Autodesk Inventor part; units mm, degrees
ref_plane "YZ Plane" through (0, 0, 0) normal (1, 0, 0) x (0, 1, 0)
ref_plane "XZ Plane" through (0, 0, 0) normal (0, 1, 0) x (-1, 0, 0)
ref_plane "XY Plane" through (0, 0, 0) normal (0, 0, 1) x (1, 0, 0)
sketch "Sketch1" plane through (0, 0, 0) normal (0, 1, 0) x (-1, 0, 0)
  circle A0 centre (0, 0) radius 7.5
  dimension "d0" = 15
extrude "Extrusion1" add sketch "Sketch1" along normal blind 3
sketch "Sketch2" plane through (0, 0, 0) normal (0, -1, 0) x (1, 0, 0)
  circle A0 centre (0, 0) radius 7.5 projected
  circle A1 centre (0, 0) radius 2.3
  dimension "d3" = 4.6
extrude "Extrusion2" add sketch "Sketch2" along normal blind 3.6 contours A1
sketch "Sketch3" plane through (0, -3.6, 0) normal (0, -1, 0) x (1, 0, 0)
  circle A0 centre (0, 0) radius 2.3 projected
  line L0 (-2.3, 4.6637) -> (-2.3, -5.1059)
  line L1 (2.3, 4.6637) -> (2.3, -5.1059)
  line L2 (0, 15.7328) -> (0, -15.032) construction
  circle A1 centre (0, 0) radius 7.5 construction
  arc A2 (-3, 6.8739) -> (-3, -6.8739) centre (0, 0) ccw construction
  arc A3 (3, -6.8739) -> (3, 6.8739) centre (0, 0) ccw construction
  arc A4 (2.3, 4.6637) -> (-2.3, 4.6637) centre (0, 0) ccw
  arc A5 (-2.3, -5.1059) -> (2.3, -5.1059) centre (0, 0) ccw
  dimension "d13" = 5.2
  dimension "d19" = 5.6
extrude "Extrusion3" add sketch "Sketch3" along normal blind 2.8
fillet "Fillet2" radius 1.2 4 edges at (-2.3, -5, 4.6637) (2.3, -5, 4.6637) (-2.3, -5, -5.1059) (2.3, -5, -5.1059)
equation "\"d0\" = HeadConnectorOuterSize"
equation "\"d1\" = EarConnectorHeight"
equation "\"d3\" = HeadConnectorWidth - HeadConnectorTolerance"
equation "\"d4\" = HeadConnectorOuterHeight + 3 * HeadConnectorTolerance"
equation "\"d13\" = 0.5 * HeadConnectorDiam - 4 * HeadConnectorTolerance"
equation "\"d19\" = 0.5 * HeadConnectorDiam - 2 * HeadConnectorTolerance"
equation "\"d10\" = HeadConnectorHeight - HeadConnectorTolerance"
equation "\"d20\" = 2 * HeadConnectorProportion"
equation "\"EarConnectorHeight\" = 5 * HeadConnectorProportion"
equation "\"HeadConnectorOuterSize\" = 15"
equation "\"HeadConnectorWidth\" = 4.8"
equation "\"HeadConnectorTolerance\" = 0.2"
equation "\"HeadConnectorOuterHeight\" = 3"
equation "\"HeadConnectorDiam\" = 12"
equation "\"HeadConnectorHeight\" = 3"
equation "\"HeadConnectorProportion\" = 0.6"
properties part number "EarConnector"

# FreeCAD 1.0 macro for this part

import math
import FreeCAD as App
import Part
import Sketcher
Q = App.Units.Quantity


def edges_at(feature, points):
    """Names of the edges that pass closest to the given points."""
    edges = feature.Shape.Edges
    near = lambda p: min(range(len(edges)), key=lambda i: edges[i].distToShape(Part.Vertex(*p))[0])
    return sorted({f"Edge{near(p) + 1}" for p in points})

doc = App.newDocument("Part")
body = doc.addObject("PartDesign::Body", "Body")

# Sketch on XZ plane
sketch1 = body.newObject("Sketcher::SketchObject", "Sketch")
sketch1.AttachmentSupport = (doc.getObject("XZ_Plane"), [""])
sketch1.MapMode = "FlatFace"
sketch1.addGeometry(Part.Circle(App.Vector(0, 0, 0), App.Vector(0, 0, 1), 8), False)
sketch1.addConstraint([
    Sketcher.Constraint("Coincident", 0, 3, -1, 1),
    Sketcher.Constraint("Diameter", 0, Q("15 mm")),
])
pad1 = body.newObject("PartDesign::Pad", "Pad")
pad1.Profile = sketch1
pad1.Length = 3
pad1.Reversed = True

# Sketch on XZ plane
sketch2 = body.newObject("Sketcher::SketchObject", "Sketch001")
sketch2.AttachmentSupport = (doc.getObject("XZ_Plane"), [""])
sketch2.MapMode = "FlatFace"
sketch2.addGeometry(Part.Circle(App.Vector(0, 0, 0), App.Vector(0, 0, 1), 2.3), False)
sketch2.addConstraint([
    Sketcher.Constraint("Coincident", 0, 3, -1, 1),
    Sketcher.Constraint("Diameter", 0, Q("4.6 mm")),
])
pad2 = body.newObject("PartDesign::Pad", "Pad001")
pad2.Profile = sketch2
pad2.Length = 3.6

# Sketch on XZ plane
sketch3 = body.newObject("Sketcher::SketchObject", "Sketch002")
sketch3.AttachmentSupport = (doc.getObject("XZ_Plane"), [""])
sketch3.MapMode = "FlatFace"
sketch3.AttachmentOffset = App.Placement(App.Vector(0, 0, 3.6), App.Rotation())
sketch3.addGeometry([
    Part.LineSegment(App.Vector(2.3, -5.1, 0), App.Vector(2.3, 4.7, 0)),
    Part.ArcOfCircle(Part.Circle(App.Vector(0, 0, 0), App.Vector(0, 0, 1), 5.2), math.radians(64), math.radians(116)),
    Part.LineSegment(App.Vector(-2.3, 4.7, 0), App.Vector(-2.3, -5.1, 0)),
    Part.ArcOfCircle(Part.Circle(App.Vector(0, 0, 0), App.Vector(0, 0, 1), 5.6), math.radians(-114), math.radians(-66)),
], False)
sketch3.addConstraint([
    Sketcher.Constraint("Coincident", 0, 2, 1, 1),
    Sketcher.Constraint("Coincident", 1, 2, 2, 1),
    Sketcher.Constraint("Coincident", 2, 2, 3, 1),
    Sketcher.Constraint("Coincident", 3, 2, 0, 1),
    Sketcher.Constraint("Vertical", 0),
    Sketcher.Constraint("Vertical", 2),
    Sketcher.Constraint("Coincident", 1, 3, -1, 1),
    Sketcher.Constraint("Coincident", 3, 3, -1, 1),
    Sketcher.Constraint("Horizontal", 0, 2, 1, 2),
    Sketcher.Constraint("Radius", 1, Q("5.2 mm")),
    Sketcher.Constraint("Radius", 3, Q("5.6 mm")),
    Sketcher.Constraint("DistanceX", -1, 1, 0, 2, Q("2.3 mm")),
])
pad3 = body.newObject("PartDesign::Pad", "Pad002")
pad3.Profile = sketch3
pad3.Length = 2.8
doc.recompute()

fillet = body.newObject("PartDesign::Fillet", "Fillet")
fillet.Base = (pad3, edges_at(pad3, [
    (-2.3, -5, 4.664),
    (2.3, -5, 4.664),
    (-2.3, -5, -5.106),
    (2.3, -5, -5.106),
]))
fillet.Radius = 1.2

doc.recompute()
